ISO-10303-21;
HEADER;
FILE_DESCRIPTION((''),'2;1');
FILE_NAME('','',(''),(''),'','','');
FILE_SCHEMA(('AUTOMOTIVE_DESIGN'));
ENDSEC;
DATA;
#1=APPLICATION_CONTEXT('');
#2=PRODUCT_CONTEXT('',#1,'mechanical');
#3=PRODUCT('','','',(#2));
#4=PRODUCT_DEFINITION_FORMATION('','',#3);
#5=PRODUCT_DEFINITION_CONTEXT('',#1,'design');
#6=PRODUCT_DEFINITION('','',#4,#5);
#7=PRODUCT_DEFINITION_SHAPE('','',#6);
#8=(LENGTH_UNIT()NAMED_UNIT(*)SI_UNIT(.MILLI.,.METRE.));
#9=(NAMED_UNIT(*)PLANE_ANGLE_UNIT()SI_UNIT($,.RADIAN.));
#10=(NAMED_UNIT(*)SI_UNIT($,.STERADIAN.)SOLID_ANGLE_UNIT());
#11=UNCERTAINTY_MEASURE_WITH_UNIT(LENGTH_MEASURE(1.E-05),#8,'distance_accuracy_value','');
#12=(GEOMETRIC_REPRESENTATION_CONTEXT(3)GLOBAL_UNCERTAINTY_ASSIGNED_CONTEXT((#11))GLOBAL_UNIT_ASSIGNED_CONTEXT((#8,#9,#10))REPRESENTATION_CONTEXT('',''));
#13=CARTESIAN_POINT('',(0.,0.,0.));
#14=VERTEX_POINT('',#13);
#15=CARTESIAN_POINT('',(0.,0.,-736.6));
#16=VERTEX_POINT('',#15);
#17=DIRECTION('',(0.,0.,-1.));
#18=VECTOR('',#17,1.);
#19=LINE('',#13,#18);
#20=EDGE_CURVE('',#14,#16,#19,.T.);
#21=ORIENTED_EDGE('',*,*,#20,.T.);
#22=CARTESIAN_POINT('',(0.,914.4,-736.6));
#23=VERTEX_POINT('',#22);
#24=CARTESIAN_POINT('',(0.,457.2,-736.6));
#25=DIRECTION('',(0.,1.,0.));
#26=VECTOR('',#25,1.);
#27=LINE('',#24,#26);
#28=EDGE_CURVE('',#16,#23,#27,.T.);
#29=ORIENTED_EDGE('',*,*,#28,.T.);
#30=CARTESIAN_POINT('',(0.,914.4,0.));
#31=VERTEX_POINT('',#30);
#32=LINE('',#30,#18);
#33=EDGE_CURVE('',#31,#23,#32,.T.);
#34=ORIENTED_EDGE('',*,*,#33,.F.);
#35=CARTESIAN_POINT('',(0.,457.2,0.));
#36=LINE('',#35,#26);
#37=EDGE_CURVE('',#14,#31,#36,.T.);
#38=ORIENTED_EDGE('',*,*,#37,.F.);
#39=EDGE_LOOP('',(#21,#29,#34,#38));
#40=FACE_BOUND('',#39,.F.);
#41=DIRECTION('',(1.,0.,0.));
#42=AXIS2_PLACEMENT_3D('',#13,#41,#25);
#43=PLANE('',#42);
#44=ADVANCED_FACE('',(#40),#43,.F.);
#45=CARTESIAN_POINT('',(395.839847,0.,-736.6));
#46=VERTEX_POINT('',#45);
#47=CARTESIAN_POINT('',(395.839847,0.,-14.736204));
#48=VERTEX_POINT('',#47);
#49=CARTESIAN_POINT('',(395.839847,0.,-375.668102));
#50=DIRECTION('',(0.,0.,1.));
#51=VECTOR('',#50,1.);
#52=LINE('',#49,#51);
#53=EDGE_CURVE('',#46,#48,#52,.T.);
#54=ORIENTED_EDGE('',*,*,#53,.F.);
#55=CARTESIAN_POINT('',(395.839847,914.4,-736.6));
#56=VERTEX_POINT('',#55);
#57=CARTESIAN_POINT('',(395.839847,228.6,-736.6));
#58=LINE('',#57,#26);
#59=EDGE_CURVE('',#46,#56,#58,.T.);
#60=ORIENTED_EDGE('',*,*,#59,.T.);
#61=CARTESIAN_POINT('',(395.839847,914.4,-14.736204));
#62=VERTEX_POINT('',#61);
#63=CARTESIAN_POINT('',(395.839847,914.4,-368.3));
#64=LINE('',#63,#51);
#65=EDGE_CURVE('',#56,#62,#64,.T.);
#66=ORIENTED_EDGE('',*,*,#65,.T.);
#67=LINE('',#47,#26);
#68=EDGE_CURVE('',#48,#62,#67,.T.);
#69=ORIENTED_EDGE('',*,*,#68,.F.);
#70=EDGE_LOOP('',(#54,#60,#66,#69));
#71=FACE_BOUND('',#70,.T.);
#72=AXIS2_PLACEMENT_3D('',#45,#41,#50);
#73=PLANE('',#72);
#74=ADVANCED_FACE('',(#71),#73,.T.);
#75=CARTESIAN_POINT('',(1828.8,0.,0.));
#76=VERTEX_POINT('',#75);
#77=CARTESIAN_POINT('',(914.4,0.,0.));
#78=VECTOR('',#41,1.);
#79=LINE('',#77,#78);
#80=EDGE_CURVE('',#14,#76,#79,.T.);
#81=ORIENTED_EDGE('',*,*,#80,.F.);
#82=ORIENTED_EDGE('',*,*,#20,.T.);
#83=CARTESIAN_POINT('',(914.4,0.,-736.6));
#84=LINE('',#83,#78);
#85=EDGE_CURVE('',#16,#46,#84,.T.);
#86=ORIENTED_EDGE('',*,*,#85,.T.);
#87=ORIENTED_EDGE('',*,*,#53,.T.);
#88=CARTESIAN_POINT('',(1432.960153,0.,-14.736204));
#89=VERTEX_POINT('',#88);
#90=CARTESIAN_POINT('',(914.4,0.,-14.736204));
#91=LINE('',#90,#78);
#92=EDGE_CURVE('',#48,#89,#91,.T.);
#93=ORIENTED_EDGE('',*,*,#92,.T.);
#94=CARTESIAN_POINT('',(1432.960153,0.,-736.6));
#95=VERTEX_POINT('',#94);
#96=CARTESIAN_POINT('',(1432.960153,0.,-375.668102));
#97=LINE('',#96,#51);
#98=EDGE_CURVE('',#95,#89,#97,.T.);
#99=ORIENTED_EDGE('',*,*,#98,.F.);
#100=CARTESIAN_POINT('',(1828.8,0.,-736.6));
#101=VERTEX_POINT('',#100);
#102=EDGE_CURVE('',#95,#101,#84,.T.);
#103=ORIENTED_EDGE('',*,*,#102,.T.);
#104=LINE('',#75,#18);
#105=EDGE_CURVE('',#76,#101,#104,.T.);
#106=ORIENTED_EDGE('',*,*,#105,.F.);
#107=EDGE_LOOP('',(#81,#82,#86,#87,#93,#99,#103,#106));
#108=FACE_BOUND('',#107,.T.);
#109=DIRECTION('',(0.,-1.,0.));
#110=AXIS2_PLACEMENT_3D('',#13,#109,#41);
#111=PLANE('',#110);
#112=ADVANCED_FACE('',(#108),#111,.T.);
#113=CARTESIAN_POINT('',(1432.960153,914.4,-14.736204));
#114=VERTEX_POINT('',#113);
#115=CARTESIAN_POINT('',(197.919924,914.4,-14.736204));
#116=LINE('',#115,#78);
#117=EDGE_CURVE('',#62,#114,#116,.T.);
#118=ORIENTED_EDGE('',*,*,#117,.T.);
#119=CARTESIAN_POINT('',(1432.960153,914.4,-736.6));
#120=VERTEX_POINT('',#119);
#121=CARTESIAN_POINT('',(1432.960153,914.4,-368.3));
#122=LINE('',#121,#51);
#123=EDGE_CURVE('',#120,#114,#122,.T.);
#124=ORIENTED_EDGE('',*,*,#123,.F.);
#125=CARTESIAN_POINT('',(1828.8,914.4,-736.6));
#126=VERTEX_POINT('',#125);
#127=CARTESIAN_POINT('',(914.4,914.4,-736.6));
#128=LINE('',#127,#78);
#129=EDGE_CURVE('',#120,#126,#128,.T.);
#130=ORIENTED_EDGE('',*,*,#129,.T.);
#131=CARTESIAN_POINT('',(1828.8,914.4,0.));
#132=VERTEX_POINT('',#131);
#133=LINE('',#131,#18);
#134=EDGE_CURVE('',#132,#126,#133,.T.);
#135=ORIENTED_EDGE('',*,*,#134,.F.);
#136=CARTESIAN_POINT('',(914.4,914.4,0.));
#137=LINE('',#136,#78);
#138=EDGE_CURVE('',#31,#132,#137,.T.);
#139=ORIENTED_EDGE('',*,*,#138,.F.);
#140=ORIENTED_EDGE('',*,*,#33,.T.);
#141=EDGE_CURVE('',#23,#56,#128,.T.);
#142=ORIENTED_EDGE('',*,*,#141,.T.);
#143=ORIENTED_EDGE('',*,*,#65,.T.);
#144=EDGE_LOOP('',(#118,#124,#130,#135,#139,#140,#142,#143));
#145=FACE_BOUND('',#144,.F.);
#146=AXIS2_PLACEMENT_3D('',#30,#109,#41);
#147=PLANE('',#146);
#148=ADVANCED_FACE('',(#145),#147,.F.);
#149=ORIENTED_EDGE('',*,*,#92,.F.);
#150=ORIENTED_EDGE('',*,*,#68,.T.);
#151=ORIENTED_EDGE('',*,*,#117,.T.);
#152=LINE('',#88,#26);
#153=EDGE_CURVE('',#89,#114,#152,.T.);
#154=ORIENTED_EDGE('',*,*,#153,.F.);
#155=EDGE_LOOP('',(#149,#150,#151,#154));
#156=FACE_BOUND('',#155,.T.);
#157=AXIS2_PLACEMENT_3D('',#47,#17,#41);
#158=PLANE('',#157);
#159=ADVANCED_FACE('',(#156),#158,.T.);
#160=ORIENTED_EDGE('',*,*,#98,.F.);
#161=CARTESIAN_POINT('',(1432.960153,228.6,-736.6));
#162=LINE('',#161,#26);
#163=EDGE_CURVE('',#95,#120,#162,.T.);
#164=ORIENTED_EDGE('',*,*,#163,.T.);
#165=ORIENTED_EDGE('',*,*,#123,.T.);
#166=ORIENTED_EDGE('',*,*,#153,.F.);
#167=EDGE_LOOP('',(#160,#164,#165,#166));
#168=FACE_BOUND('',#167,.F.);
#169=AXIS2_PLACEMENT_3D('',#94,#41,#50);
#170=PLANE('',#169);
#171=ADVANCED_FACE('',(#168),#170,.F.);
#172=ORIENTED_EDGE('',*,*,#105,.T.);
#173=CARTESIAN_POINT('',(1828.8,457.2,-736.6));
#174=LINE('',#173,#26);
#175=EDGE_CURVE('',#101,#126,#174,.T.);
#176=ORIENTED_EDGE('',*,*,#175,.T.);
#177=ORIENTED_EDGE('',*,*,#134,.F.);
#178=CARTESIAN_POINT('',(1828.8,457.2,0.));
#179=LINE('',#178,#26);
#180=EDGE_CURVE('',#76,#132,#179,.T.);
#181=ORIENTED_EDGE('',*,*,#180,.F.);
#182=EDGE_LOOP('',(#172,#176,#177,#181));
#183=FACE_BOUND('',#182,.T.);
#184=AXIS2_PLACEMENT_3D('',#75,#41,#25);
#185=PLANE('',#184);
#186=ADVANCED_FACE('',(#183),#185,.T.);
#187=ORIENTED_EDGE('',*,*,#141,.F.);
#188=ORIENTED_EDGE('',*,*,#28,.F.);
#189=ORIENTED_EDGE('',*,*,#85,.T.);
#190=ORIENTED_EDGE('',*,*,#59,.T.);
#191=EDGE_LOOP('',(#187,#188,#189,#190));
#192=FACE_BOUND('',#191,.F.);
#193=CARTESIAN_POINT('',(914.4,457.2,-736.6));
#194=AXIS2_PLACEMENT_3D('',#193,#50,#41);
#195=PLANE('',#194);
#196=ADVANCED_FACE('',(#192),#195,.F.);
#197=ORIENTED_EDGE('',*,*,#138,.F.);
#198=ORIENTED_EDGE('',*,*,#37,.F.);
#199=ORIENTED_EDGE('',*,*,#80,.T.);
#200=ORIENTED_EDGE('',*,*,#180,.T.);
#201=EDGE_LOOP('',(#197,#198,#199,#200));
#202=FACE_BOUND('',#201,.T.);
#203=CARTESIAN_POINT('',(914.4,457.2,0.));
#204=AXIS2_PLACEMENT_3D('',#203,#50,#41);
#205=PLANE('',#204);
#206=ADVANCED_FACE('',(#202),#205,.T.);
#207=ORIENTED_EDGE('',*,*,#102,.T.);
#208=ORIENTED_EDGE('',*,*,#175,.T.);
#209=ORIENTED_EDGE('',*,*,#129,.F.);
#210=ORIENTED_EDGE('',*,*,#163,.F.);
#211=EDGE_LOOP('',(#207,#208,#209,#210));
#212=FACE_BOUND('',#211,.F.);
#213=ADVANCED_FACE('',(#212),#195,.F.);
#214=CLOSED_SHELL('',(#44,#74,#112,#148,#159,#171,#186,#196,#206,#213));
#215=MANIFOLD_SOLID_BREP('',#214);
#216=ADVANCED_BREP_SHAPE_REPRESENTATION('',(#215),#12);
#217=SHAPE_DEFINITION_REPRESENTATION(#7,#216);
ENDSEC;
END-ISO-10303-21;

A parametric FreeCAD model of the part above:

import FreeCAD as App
import Part
import Sketcher
Q = App.Units.Quantity

doc = App.newDocument("Part")
body = doc.addObject("PartDesign::Body", "Body")

# Sketch on XY plane
sketch1 = body.newObject("Sketcher::SketchObject", "Sketch")
sketch1.AttachmentSupport = (doc.getObject("XY_Plane"), [""])
sketch1.MapMode = "FlatFace"
sketch1.addGeometry(Part.LineSegment(App.Vector(0, 914, 0), App.Vector(0, 0, 0)), False)
sketch1.addGeometry(Part.LineSegment(App.Vector(0, 0, 0), App.Vector(1829, 0, 0)), False)
sketch1.addGeometry(Part.LineSegment(App.Vector(1829, 0, 0), App.Vector(1829, 914, 0)), False)
sketch1.addGeometry(Part.LineSegment(App.Vector(1829, 914, 0), App.Vector(0, 914, 0)), False)
sketch1.addConstraint(Sketcher.Constraint("Coincident", 0, 2, 1, 1))
sketch1.addConstraint(Sketcher.Constraint("Coincident", 1, 2, 2, 1))
sketch1.addConstraint(Sketcher.Constraint("Coincident", 2, 2, 3, 1))
sketch1.addConstraint(Sketcher.Constraint("Coincident", 3, 2, 0, 1))
sketch1.addConstraint(Sketcher.Constraint("Vertical", 0))
sketch1.addConstraint(Sketcher.Constraint("Horizontal", 1))
sketch1.addConstraint(Sketcher.Constraint("Vertical", 2))
sketch1.addConstraint(Sketcher.Constraint("Horizontal", 3))
sketch1.addConstraint(Sketcher.Constraint("Coincident", 0, 2, -1, 1))
sketch1.addConstraint(Sketcher.Constraint("DistanceX", 1, 1, 1, 2, Q("72 in")))
sketch1.addConstraint(Sketcher.Constraint("DistanceY", 0, 2, 0, 1, Q("36 in")))
pad1 = body.newObject("PartDesign::Pad", "Pad")
pad1.Profile = sketch1
pad1.Length = Q("29 in")
pad1.Reversed = True

# Sketch on XZ plane
sketch2 = body.newObject("Sketcher::SketchObject", "Sketch001")
sketch2.AttachmentSupport = (doc.getObject("XZ_Plane"), [""])
sketch2.MapMode = "FlatFace"
sketch2.addGeometry(Part.LineSegment(App.Vector(396, -15, 0), App.Vector(396, -737, 0)), False)
sketch2.addGeometry(Part.LineSegment(App.Vector(396, -737, 0), App.Vector(1433, -737, 0)), False)
sketch2.addGeometry(Part.LineSegment(App.Vector(1433, -737, 0), App.Vector(1433, -15, 0)), False)
sketch2.addGeometry(Part.LineSegment(App.Vector(1433, -15, 0), App.Vector(396, -15, 0)), False)
sketch2.addConstraint(Sketcher.Constraint("Coincident", 0, 2, 1, 1))
sketch2.addConstraint(Sketcher.Constraint("Coincident", 1, 2, 2, 1))
sketch2.addConstraint(Sketcher.Constraint("Coincident", 2, 2, 3, 1))
sketch2.addConstraint(Sketcher.Constraint("Coincident", 3, 2, 0, 1))
sketch2.addConstraint(Sketcher.Constraint("Vertical", 0))
sketch2.addConstraint(Sketcher.Constraint("Horizontal", 1))
sketch2.addConstraint(Sketcher.Constraint("Vertical", 2))
sketch2.addConstraint(Sketcher.Constraint("Horizontal", 3))
sketch2.addConstraint(Sketcher.Constraint("DistanceY", 0, 2, -1, 1, Q("29 in")))
sketch2.addConstraint(Sketcher.Constraint("DistanceX", 1, 1, 1, 2, 1037.120306))
sketch2.addConstraint(Sketcher.Constraint("DistanceY", 0, 2, 0, 1, 721.863797))
sketch2.addConstraint(Sketcher.Constraint("DistanceX", -1, 1, 0, 2, 395.839847))
pocket1 = body.newObject("PartDesign::Pocket", "Pocket")
pocket1.Profile = sketch2
pocket1.Type = "ThroughAll"

doc.recompute()
